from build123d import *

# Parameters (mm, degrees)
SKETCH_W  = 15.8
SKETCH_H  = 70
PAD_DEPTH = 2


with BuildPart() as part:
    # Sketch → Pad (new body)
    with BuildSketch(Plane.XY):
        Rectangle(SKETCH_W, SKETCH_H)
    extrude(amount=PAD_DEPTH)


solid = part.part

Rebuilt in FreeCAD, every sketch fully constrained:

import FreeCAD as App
import Part
import Sketcher

V = App.Vector

doc = App.newDocument("Part")
body = doc.addObject("PartDesign::Body", "Body")

# Sketch on XY plane
sketch1 = doc.addObject("Sketcher::SketchObject", "Sketch")
body.addObject(sketch1)
sketch1.AttachmentSupport = (doc.XY_Plane, [""])
sketch1.MapMode = "FlatFace"
sketch1.addGeometry(Part.LineSegment(V(-8, 35, 0), V(-8, -35, 0)), False)
sketch1.addGeometry(Part.LineSegment(V(-8, -35, 0), V(8, -35, 0)), False)
sketch1.addGeometry(Part.LineSegment(V(8, -35, 0), V(8, 35, 0)), False)
sketch1.addGeometry(Part.LineSegment(V(8, 35, 0), V(-8, 35, 0)), False)
sketch1.addConstraint(Sketcher.Constraint("Coincident", 0, 2, 1, 1))
sketch1.addConstraint(Sketcher.Constraint("Coincident", 1, 2, 2, 1))
sketch1.addConstraint(Sketcher.Constraint("Coincident", 2, 2, 3, 1))
sketch1.addConstraint(Sketcher.Constraint("Coincident", 3, 2, 0, 1))
sketch1.addConstraint(Sketcher.Constraint("Vertical", 0))
sketch1.addConstraint(Sketcher.Constraint("Horizontal", 1))
sketch1.addConstraint(Sketcher.Constraint("Vertical", 2))
sketch1.addConstraint(Sketcher.Constraint("Horizontal", 3))
sketch1.addConstraint(Sketcher.Constraint("Symmetric", 0, 2, 2, 2, -1, 1))
sketch1.addConstraint(Sketcher.Constraint("DistanceY", 0, 2, 0, 1, 70.0))
sketch1.addConstraint(Sketcher.Constraint("DistanceX", 1, 1, 1, 2, 15.8))
pad1 = doc.addObject("PartDesign::Pad", "Pad")
body.addObject(pad1)
pad1.Profile = sketch1
pad1.Length = 2

doc.recompute()
